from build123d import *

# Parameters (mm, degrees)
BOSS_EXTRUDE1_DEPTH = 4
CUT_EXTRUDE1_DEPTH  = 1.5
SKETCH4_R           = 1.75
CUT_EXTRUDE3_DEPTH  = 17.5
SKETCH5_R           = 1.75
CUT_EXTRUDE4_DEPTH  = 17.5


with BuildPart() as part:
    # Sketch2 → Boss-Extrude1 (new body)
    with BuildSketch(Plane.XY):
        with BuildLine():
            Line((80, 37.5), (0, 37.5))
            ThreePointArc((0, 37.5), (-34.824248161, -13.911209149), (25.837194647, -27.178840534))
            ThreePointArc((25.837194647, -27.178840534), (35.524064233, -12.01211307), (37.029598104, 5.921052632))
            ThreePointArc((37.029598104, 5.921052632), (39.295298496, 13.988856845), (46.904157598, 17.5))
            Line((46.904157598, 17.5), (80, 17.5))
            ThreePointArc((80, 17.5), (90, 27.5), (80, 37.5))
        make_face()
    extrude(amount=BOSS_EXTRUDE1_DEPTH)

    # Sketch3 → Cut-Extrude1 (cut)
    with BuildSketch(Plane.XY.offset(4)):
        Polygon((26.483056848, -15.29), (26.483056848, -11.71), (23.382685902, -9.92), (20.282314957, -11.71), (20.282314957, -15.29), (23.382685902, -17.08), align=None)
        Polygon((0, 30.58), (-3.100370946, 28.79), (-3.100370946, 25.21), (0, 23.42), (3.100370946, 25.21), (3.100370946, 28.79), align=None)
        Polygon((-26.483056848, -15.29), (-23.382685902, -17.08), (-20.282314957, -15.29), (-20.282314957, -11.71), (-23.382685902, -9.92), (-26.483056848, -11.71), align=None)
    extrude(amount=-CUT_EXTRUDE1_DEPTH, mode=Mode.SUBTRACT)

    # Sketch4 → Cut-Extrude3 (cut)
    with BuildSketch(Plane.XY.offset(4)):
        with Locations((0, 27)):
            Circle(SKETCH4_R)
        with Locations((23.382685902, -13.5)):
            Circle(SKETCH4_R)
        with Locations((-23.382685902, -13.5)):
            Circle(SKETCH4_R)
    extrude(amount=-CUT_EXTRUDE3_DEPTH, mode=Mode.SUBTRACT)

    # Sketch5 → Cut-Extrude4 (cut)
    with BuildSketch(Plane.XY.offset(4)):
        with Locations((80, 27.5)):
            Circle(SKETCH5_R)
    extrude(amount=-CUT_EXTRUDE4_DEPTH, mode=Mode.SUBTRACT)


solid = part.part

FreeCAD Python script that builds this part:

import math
import FreeCAD as App
import Part
import Sketcher
Q = App.Units.Quantity

doc = App.newDocument("Part")
body = doc.addObject("PartDesign::Body", "Body")

sketch1 = body.newObject("Sketcher::SketchObject", "Sketch")
sketch1.AttachmentSupport = (doc.getObject("XY_Plane"), [""])
sketch1.MapMode = "FlatFace"
sketch1.addGeometry([
    Part.LineSegment(App.Vector(80, 38, 0), App.Vector(0, 38, 0)),
    Part.ArcOfCircle(Part.Circle(App.Vector(0, 0, 0), App.Vector(0, 0, 1), 38), math.radians(90), math.radians(314)),
    Part.ArcOfCircle(Part.Circle(App.Vector(0, 0, 0), App.Vector(0, 0, 1), 37), math.radians(-46), math.radians(9)),
    Part.ArcOfCircle(Part.Circle(App.Vector(47, 8, 0), App.Vector(0, 0, 1), 10), math.radians(90), math.radians(189)),
    Part.LineSegment(App.Vector(47, 18, 0), App.Vector(80, 18, 0)),
    Part.ArcOfCircle(Part.Circle(App.Vector(80, 28, 0), App.Vector(0, 0, 1), 10), math.radians(-90), math.radians(90)),
], False)
sketch1.addConstraint([
    Sketcher.Constraint("Tangent", 0, 2, 1, 1),
    Sketcher.Constraint("Tangent", 1, 2, 2, 1),
    Sketcher.Constraint("Tangent", 2, 2, 3, 2),
    Sketcher.Constraint("Tangent", 3, 1, 4, 1),
    Sketcher.Constraint("Tangent", 4, 2, 5, 1),
    Sketcher.Constraint("Tangent", 5, 2, 0, 1),
    Sketcher.Constraint("Horizontal", 0),
    Sketcher.Constraint("Horizontal", 4),
    Sketcher.Constraint("Coincident", 1, 3, -1, 1),
    Sketcher.Constraint("Equal", 1, 2),
    Sketcher.Constraint("Equal", 3, 5),
    Sketcher.Constraint("Radius", 3, Q("10 mm")),
    Sketcher.Constraint("Radius", 1, Q("37.5 mm")),
    Sketcher.Constraint("DistanceX", 0, 2, 0, 1, Q("80 mm")),
    Sketcher.Constraint("DistanceY", 1, 2, -1, 1, Q("27.178841 mm")),
])
pad1 = body.newObject("PartDesign::Pad", "Pad")
pad1.Profile = sketch1
pad1.Length = 4

sketch2 = body.newObject("Sketcher::SketchObject", "Sketch001")
sketch2.AttachmentSupport = (doc.getObject("XY_Plane"), [""])
sketch2.MapMode = "FlatFace"
sketch2.AttachmentOffset = App.Placement(App.Vector(0, 0, 4), App.Rotation())
sketch2.addGeometry([
    Part.LineSegment(App.Vector(26.5, -15.3, 0), App.Vector(26.5, -11.7, 0)),
    Part.LineSegment(App.Vector(26.5, -11.7, 0), App.Vector(23.4, -9.9, 0)),
    Part.LineSegment(App.Vector(23.4, -9.9, 0), App.Vector(20.3, -11.7, 0)),
    Part.LineSegment(App.Vector(20.3, -11.7, 0), App.Vector(20.3, -15.3, 0)),
    Part.LineSegment(App.Vector(20.3, -15.3, 0), App.Vector(23.4, -17.1, 0)),
    Part.LineSegment(App.Vector(23.4, -17.1, 0), App.Vector(26.5, -15.3, 0)),
    Part.LineSegment(App.Vector(0, 30.6, 0), App.Vector(-3.1, 28.8, 0)),
    Part.LineSegment(App.Vector(-3.1, 28.8, 0), App.Vector(-3.1, 25.2, 0)),
    Part.LineSegment(App.Vector(-3.1, 25.2, 0), App.Vector(0, 23.4, 0)),
    Part.LineSegment(App.Vector(0, 23.4, 0), App.Vector(3.1, 25.2, 0)),
    Part.LineSegment(App.Vector(3.1, 25.2, 0), App.Vector(3.1, 28.8, 0)),
    Part.LineSegment(App.Vector(3.1, 28.8, 0), App.Vector(0, 30.6, 0)),
    Part.LineSegment(App.Vector(-26.5, -15.3, 0), App.Vector(-23.4, -17.1, 0)),
    Part.LineSegment(App.Vector(-23.4, -17.1, 0), App.Vector(-20.3, -15.3, 0)),
    Part.LineSegment(App.Vector(-20.3, -15.3, 0), App.Vector(-20.3, -11.7, 0)),
    Part.LineSegment(App.Vector(-20.3, -11.7, 0), App.Vector(-23.4, -9.9, 0)),
    Part.LineSegment(App.Vector(-23.4, -9.9, 0), App.Vector(-26.5, -11.7, 0)),
    Part.LineSegment(App.Vector(-26.5, -11.7, 0), App.Vector(-26.5, -15.3, 0)),
], False)
sketch2.addConstraint([
    Sketcher.Constraint("Coincident", 0, 2, 1, 1),
    Sketcher.Constraint("Coincident", 1, 2, 2, 1),
    Sketcher.Constraint("Coincident", 2, 2, 3, 1),
    Sketcher.Constraint("Coincident", 3, 2, 4, 1),
    Sketcher.Constraint("Coincident", 4, 2, 5, 1),
    Sketcher.Constraint("Coincident", 5, 2, 0, 1),
    Sketcher.Constraint("Coincident", 6, 2, 7, 1),
    Sketcher.Constraint("Coincident", 7, 2, 8, 1),
    Sketcher.Constraint("Coincident", 8, 2, 9, 1),
    Sketcher.Constraint("Coincident", 9, 2, 10, 1),
    Sketcher.Constraint("Coincident", 10, 2, 11, 1),
    Sketcher.Constraint("Coincident", 11, 2, 6, 1),
    Sketcher.Constraint("Coincident", 12, 2, 13, 1),
    Sketcher.Constraint("Coincident", 13, 2, 14, 1),
    Sketcher.Constraint("Coincident", 14, 2, 15, 1),
    Sketcher.Constraint("Coincident", 15, 2, 16, 1),
    Sketcher.Constraint("Coincident", 16, 2, 17, 1),
    Sketcher.Constraint("Coincident", 17, 2, 12, 1),
    Sketcher.Constraint("Vertical", 0),
    Sketcher.Constraint("Vertical", 3),
    Sketcher.Constraint("Vertical", 7),
    Sketcher.Constraint("Vertical", 10),
    Sketcher.Constraint("Vertical", 14),
    Sketcher.Constraint("Vertical", 17),
    Sketcher.Constraint("Symmetric", 7, 2, 9, 2, -2),
    Sketcher.Constraint("Symmetric", 4, 2, 12, 2, -2),
    Sketcher.Constraint("Symmetric", 3, 2, 13, 2, -2),
    Sketcher.Constraint("Symmetric", 1, 2, 15, 2, -2),
    Sketcher.Constraint("Symmetric", 0, 2, 16, 2, -2),
    Sketcher.Constraint("PointOnObject", 8, 2, -2),
    Sketcher.Constraint("PointOnObject", 11, 2, -2),
    Sketcher.Constraint("Parallel", 1, 4),
    Sketcher.Constraint("Parallel", 2, 5),
    Sketcher.Constraint("Parallel", 5, 6),
    Sketcher.Constraint("Parallel", 4, 8),
    Sketcher.Constraint("Parallel", 6, 9),
    Sketcher.Constraint("Parallel", 8, 11),
    Sketcher.Constraint("Parallel", 11, 12),
    Sketcher.Constraint("Parallel", 12, 15),
    Sketcher.Constraint("Horizontal", 0, 2, 2, 2),
    Sketcher.Constraint("Horizontal", 3, 2, 5, 2),
    Sketcher.Constraint("Equal", 3, 7),
    Sketcher.Constraint("Equal", 5, 6),
    Sketcher.Constraint("Angle", 1, Q("150 deg")),
    Sketcher.Constraint("DistanceY", 0, 1, 0, 2, Q("3.58 mm")),
    Sketcher.Constraint("DistanceY", 2, 2, 6, 2, Q("40.5 mm")),
    Sketcher.Constraint("Distance", 1, Q("3.58 mm")),
    Sketcher.Constraint("DistanceY", 0, 2, -1, 1, Q("11.71 mm")),
    Sketcher.Constraint("DistanceX", 12, 2, 3, 2, Q("43.665001 mm")),
])
pocket1 = body.newObject("PartDesign::Pocket", "Pocket")
pocket1.Profile = sketch2
pocket1.Length = 1.5

sketch3 = body.newObject("Sketcher::SketchObject", "Sketch002")
sketch3.AttachmentSupport = (doc.getObject("XY_Plane"), [""])
sketch3.MapMode = "FlatFace"
sketch3.AttachmentOffset = App.Placement(App.Vector(0, 0, 4), App.Rotation())
sketch3.addGeometry([
    Part.Circle(App.Vector(0, 27, 0), App.Vector(0, 0, 1), 1.8),
    Part.Circle(App.Vector(23.4, -13.5, 0), App.Vector(0, 0, 1), 1.8),
    Part.Circle(App.Vector(-23.4, -13.5, 0), App.Vector(0, 0, 1), 1.8),
], False)
sketch3.addConstraint([
    Sketcher.Constraint("Equal", 0, 1),
    Sketcher.Constraint("Equal", 1, 2),
    Sketcher.Constraint("Symmetric", 1, 3, 2, 3, -2),
    Sketcher.Constraint("PointOnObject", 0, 3, -2),
    Sketcher.Constraint("Diameter", 0, Q("3.5 mm")),
    Sketcher.Constraint("DistanceY", -1, 1, 0, 3, Q("27 mm")),
    Sketcher.Constraint("DistanceY", 1, 3, -1, 1, Q("13.5 mm")),
    Sketcher.Constraint("DistanceX", 2, 3, 1, 3, Q("46.765372 mm")),
])
pocket2 = body.newObject("PartDesign::Pocket", "Pocket001")
pocket2.Profile = sketch3
pocket2.Length = 17.5

sketch4 = body.newObject("Sketcher::SketchObject", "Sketch003")
sketch4.AttachmentSupport = (doc.getObject("XY_Plane"), [""])
sketch4.MapMode = "FlatFace"
sketch4.AttachmentOffset = App.Placement(App.Vector(0, 0, 4), App.Rotation())
sketch4.addGeometry(Part.Circle(App.Vector(80, 27.5, 0), App.Vector(0, 0, 1), 1.8), False)
sketch4.addConstraint([
    Sketcher.Constraint("Diameter", 0, Q("3.5 mm")),
    Sketcher.Constraint("DistanceX", -1, 1, 0, 3, Q("80 mm")),
    Sketcher.Constraint("DistanceY", -1, 1, 0, 3, Q("27.5 mm")),
])
pocket3 = body.newObject("PartDesign::Pocket", "Pocket002")
pocket3.Profile = sketch4
pocket3.Length = 17.5

doc.recompute()
